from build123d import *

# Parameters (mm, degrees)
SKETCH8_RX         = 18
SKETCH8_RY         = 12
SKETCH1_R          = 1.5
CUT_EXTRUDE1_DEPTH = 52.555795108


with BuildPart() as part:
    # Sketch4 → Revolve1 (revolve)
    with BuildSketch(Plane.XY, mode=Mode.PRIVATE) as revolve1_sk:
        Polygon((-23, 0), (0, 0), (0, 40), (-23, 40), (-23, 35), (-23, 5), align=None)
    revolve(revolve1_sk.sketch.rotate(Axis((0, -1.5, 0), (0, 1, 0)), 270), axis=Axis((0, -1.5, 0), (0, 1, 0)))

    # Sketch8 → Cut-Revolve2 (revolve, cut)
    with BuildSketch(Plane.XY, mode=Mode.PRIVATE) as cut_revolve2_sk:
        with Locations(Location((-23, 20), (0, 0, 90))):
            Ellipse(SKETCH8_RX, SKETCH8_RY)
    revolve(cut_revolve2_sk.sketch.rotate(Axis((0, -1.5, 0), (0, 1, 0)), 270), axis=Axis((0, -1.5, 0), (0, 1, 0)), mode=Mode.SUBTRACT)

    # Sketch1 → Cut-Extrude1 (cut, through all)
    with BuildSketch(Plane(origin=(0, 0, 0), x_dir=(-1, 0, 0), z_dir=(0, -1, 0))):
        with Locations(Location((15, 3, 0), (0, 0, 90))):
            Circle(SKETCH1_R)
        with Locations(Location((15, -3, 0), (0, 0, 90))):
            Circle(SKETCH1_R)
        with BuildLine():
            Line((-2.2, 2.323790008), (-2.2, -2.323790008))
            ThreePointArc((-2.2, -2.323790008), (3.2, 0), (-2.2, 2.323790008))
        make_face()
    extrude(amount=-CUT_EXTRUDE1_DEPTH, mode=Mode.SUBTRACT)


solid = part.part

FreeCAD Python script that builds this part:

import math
import FreeCAD as App
import Part
import Sketcher
from FreeCAD import Vector
Q = App.Units.Quantity


def add_polygon(sketch, points):
    """Adds a closed chain of lines whose ends are joined by coincident constraints."""
    first, n = sketch.GeometryCount, len(points)
    for a, b in zip(points, points[1:] + points[:1]):
        sketch.addGeometry(Part.LineSegment(App.Vector(*a, 0), App.Vector(*b, 0)), False)
    for i in range(n):
        sketch.addConstraint(Sketcher.Constraint("Coincident", first + i, 2, first + (i + 1) % n, 1))

doc = App.newDocument("Part")
body = doc.addObject("PartDesign::Body", "Body")

# Sketch on XY plane
sketch1 = doc.addObject("Sketcher::SketchObject", "Sketch")
body.addObject(sketch1)
sketch1.AttachmentSupport = (doc.XY_Plane, [""])
sketch1.MapMode = "FlatFace"
add_polygon(sketch1, [(-23, 0), (0, 0), (0, 40), (-23, 40)])  # lines 0-3
sketch1.addConstraint([
    Sketcher.Constraint("Horizontal", 0),
    Sketcher.Constraint("Vertical", 1),
    Sketcher.Constraint("Horizontal", 2),
    Sketcher.Constraint("Vertical", 3),
    Sketcher.Constraint("Coincident", 0, 2, -1, 1),
    Sketcher.Constraint("DistanceX", 0, 1, 0, 2, Q("23 mm")),
    Sketcher.Constraint("DistanceY", 1, 1, 1, 2, Q("40 mm")),
])
revolution = doc.addObject("PartDesign::Revolution", "Revolution")
body.addObject(revolution)
revolution.Profile = sketch1
revolution.ReferenceAxis = (sketch1, ["V_Axis"])
revolution.Angle = 360

# Sketch on XY plane
sketch2 = doc.addObject("Sketcher::SketchObject", "Sketch001")
body.addObject(sketch2)
sketch2.AttachmentSupport = (doc.XY_Plane, [""])
sketch2.MapMode = "FlatFace"
sketch2.addGeometry(Part.Ellipse(Vector(-23, 38, 0), Vector(-35, 20, 0), Vector(-23, 20, 0)), False)
sketch2.addConstraint(Sketcher.Constraint("Block", 0))
groove = doc.addObject("PartDesign::Groove", "Groove")
body.addObject(groove)
groove.Profile = sketch2
groove.ReferenceAxis = (sketch2, ["V_Axis"])
groove.Angle = 360

# Sketch on XZ plane
sketch3 = doc.addObject("Sketcher::SketchObject", "Sketch002")
body.addObject(sketch3)
sketch3.AttachmentSupport = (doc.XZ_Plane, [""])
sketch3.MapMode = "FlatFace"
sketch3.addGeometry([
    Part.Circle(Vector(-15, -3, 0), Vector(0, 0, 1), 1.5),
    Part.Circle(Vector(-15, 3, 0), Vector(0, 0, 1), 1.5),
    Part.LineSegment(Vector(2.2, -2.3, 0), Vector(2.2, 2.3, 0)),
    Part.ArcOfCircle(Part.Circle(Vector(0, 0, 0), Vector(0, 0, 1), 3.2), math.radians(47), math.radians(313)),
], False)
sketch3.addConstraint([
    Sketcher.Constraint("Coincident", 2, 1, 3, 2),
    Sketcher.Constraint("Coincident", 3, 1, 2, 2),
    Sketcher.Constraint("Vertical", 2),
    Sketcher.Constraint("Coincident", 3, 3, -1, 1),
    Sketcher.Constraint("Equal", 0, 1),
    Sketcher.Constraint("Symmetric", 0, 3, 1, 3, -1),
    Sketcher.Constraint("Diameter", 0, Q("3 mm")),
    Sketcher.Constraint("Radius", 3, Q("3.2 mm")),
    Sketcher.Constraint("DistanceX", 0, 3, -1, 1, Q("15 mm")),
    Sketcher.Constraint("DistanceY", 0, 3, -1, 1, Q("3 mm")),
    Sketcher.Constraint("DistanceX", -1, 1, 2, 1, Q("2.2 mm")),
])
pocket1 = doc.addObject("PartDesign::Pocket", "Pocket")
body.addObject(pocket1)
pocket1.Profile = sketch3
pocket1.Type = "ThroughAll"

doc.recompute()
